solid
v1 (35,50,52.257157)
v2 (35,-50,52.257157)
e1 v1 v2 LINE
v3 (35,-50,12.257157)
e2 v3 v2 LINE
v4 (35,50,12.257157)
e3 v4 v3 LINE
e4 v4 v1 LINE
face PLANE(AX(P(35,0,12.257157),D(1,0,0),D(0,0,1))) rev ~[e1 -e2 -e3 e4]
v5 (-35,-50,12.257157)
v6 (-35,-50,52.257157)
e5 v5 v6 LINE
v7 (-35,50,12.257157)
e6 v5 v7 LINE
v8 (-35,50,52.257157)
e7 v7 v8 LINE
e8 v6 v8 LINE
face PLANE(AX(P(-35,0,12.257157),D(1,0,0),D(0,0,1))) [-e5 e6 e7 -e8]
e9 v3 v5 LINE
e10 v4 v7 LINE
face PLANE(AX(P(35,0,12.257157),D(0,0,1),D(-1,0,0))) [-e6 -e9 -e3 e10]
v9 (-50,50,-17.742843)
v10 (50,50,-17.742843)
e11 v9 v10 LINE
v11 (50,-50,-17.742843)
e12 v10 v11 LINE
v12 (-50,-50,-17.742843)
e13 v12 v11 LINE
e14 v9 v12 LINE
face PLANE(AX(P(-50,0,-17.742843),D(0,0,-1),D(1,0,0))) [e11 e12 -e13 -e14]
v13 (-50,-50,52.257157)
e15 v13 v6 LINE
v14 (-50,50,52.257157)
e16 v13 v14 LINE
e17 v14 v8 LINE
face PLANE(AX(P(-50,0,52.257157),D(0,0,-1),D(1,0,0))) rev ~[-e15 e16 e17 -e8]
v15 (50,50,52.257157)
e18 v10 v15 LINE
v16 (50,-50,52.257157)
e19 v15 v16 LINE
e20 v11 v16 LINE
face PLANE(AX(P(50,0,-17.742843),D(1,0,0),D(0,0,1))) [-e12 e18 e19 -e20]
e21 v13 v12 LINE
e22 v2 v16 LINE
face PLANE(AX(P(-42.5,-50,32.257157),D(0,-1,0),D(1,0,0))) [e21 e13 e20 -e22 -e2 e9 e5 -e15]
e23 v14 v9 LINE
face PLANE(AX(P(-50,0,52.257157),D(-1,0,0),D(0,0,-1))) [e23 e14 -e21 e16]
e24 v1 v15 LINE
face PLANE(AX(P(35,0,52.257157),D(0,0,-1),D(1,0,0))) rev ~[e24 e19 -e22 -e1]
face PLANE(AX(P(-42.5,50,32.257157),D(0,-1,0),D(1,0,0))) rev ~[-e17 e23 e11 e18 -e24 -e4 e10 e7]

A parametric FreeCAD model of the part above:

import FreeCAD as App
import Part
import Sketcher

doc = App.newDocument("Part")
body = doc.addObject("PartDesign::Body", "Body")

# Sketch on XZ plane
sketch1 = doc.addObject("Sketcher::SketchObject", "Sketch")
body.addObject(sketch1)
sketch1.AttachmentSupport = (doc.XZ_Plane, [""])
sketch1.MapMode = "FlatFace"
sketch1.addGeometry([
    Part.LineSegment(App.Vector(-50, 52, 0), App.Vector(-50, -18, 0)),  # 0
    Part.LineSegment(App.Vector(-50, -18, 0), App.Vector(50, -18, 0)),  # 1
    Part.LineSegment(App.Vector(50, -18, 0), App.Vector(50, 52, 0)),  # 2
    Part.LineSegment(App.Vector(50, 52, 0), App.Vector(35, 52, 0)),  # 3
    Part.LineSegment(App.Vector(35, 52, 0), App.Vector(35, 12, 0)),  # 4
    Part.LineSegment(App.Vector(35, 12, 0), App.Vector(-35, 12, 0)),  # 5
    Part.LineSegment(App.Vector(-35, 12, 0), App.Vector(-35, 52, 0)),  # 6
    Part.LineSegment(App.Vector(-35, 52, 0), App.Vector(-50, 52, 0)),  # 7
], False)
sketch1.addConstraint([
    Sketcher.Constraint("Coincident", 0, 2, 1, 1),
    Sketcher.Constraint("Coincident", 1, 2, 2, 1),
    Sketcher.Constraint("Coincident", 2, 2, 3, 1),
    Sketcher.Constraint("Coincident", 3, 2, 4, 1),
    Sketcher.Constraint("Coincident", 4, 2, 5, 1),
    Sketcher.Constraint("Coincident", 5, 2, 6, 1),
    Sketcher.Constraint("Coincident", 6, 2, 7, 1),
    Sketcher.Constraint("Coincident", 7, 2, 0, 1),
    Sketcher.Constraint("Vertical", 0),
    Sketcher.Constraint("Horizontal", 1),
    Sketcher.Constraint("Vertical", 2),
    Sketcher.Constraint("Horizontal", 3),
    Sketcher.Constraint("Vertical", 4),
    Sketcher.Constraint("Horizontal", 5),
    Sketcher.Constraint("Vertical", 6),
    Sketcher.Constraint("Horizontal", 7),
    Sketcher.Constraint("Symmetric", 3, 2, 6, 2, -2),
    Sketcher.Constraint("Equal", 3, 7),
    Sketcher.Constraint("Equal", 5, 0),
    Sketcher.Constraint("DistanceX", 1, 1, 1, 2, 100.0),
    Sketcher.Constraint("DistanceX", 3, 2, 3, 1, 15.0),
    Sketcher.Constraint("DistanceY", 4, 2, 4, 1, 40.0),
    Sketcher.Constraint("DistanceY", 0, 2, -1, 1, 17.742843),
])
pad1 = doc.addObject("PartDesign::Pad", "Pad")
body.addObject(pad1)
pad1.Profile = sketch1
pad1.Length = 100
pad1.Midplane = True

doc.recompute()
